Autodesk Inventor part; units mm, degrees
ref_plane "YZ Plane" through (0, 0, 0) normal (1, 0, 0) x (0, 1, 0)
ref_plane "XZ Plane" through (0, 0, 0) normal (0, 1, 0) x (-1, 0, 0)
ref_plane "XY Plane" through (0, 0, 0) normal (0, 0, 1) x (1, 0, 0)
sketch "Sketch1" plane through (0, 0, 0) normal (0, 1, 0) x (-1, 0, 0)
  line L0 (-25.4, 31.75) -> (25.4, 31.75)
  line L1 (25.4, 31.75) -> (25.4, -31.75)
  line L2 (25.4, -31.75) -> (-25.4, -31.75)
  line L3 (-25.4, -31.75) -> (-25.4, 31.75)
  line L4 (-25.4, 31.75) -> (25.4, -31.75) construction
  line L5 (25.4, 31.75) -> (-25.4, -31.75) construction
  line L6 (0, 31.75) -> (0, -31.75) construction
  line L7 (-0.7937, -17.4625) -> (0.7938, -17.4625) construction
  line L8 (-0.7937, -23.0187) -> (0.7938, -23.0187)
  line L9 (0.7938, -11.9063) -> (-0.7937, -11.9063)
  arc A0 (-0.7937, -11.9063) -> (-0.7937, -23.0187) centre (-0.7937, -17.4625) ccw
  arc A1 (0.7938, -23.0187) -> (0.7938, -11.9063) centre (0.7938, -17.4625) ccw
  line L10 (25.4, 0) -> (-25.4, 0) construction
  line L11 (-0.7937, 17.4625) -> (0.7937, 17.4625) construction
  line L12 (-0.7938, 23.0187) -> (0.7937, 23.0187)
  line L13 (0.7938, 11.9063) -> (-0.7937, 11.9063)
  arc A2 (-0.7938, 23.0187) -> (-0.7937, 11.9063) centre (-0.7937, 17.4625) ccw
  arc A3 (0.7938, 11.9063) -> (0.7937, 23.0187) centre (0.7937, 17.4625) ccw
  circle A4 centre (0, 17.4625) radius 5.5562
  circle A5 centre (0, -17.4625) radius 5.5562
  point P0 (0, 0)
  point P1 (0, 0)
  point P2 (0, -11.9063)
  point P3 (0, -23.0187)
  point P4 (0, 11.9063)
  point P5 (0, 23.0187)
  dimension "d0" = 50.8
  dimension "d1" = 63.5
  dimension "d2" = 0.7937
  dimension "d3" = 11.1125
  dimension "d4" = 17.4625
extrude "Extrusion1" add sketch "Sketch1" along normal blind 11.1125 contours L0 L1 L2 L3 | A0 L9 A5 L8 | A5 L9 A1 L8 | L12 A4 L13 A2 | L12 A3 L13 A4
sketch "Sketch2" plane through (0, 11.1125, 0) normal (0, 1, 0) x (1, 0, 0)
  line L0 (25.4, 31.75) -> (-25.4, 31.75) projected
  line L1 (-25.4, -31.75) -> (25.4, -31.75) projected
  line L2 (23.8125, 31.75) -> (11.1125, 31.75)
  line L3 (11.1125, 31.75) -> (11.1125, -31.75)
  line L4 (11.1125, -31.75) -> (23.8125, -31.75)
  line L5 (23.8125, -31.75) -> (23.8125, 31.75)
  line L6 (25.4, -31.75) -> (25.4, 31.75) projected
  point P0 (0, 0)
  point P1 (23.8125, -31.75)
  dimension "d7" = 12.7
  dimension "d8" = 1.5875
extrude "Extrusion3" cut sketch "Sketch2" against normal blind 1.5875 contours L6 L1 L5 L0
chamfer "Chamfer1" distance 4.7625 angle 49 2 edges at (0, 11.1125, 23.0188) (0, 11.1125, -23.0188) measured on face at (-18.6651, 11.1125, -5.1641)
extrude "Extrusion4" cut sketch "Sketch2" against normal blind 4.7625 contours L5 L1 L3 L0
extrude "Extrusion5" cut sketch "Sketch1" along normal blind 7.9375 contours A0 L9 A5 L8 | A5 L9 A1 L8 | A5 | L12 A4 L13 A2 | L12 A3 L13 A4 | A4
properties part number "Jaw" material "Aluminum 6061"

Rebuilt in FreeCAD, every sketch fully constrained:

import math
import FreeCAD as App
import Part
import Sketcher

V = App.Vector
Q = App.Units.Quantity


def edges_at(feature, points):
    """Names of the edges that pass closest to the given points."""
    edges = feature.Shape.Edges
    near = lambda p: min(range(len(edges)), key=lambda i: edges[i].distToShape(Part.Vertex(*p))[0])
    return sorted({f"Edge{near(p) + 1}" for p in points})


def add_polygon(sketch, points):
    """Adds a closed chain of lines whose ends are joined by coincident constraints."""
    first, n = sketch.GeometryCount, len(points)
    for a, b in zip(points, points[1:] + points[:1]):
        sketch.addGeometry(Part.LineSegment(App.Vector(*a, 0), App.Vector(*b, 0)), False)
    for i in range(n):
        sketch.addConstraint(Sketcher.Constraint("Coincident", first + i, 2, first + (i + 1) % n, 1))

doc = App.newDocument("Part")
params = doc.addObject("Spreadsheet::Sheet", "Params")
for row, (alias, value) in enumerate([
    ("sketch1_width", "2 in"),
    ("sketch1_diameter", "0.4375 in"),
    ("sketch1_height", "2.5 in"),
    ("pad1_length", "0.4375 in"),
    ("sketch2_width", "0.0625 in"),
    ("sketch2_height", "2.5 in"),
    ("pocket1_length", "0.0625 in"),
    ("chamfer_size", "0.1875 in"),
    ("sketch3_width", "0.5 in"),
    ("sketch3_height", "2.5 in"),
    ("pocket2_length", "0.1875 in"),
    ("sketch4_radius", "0.218748 in"),
    ("pocket3_length", "0.3125 in"),
], start=1):
    params.set(f"A{row}", alias)
    params.set(f"B{row}", "=" + value)
    params.setAlias(f"B{row}", alias)

body = doc.addObject("PartDesign::Body", "Body")

# Sketch on XZ plane
sketch1 = body.newObject("Sketcher::SketchObject", "Sketch")
sketch1.AttachmentSupport = (doc.getObject("XZ_Plane"), [""])
sketch1.MapMode = "FlatFace"
add_polygon(sketch1, [(-25, 32), (25, 32), (25, -32), (-25, -32)])  # lines 0-3
sketch1.addGeometry(Part.Circle(V(0, -17, 0), V(0, 0, 1), 6), False)  # 4
sketch1.addGeometry(Part.Circle(V(0, 17, 0), V(0, 0, 1), 6), False)  # 5
sketch1.addConstraint(Sketcher.Constraint("Horizontal", 0))
sketch1.addConstraint(Sketcher.Constraint("Vertical", 1))
sketch1.addConstraint(Sketcher.Constraint("Horizontal", 2))
sketch1.addConstraint(Sketcher.Constraint("Vertical", 3))
sketch1.addConstraint(Sketcher.Constraint("Equal", 4, 5))
sketch1.addConstraint(Sketcher.Constraint("Symmetric", 4, 3, 5, 3, -1, 1))
sketch1.addConstraint(Sketcher.Constraint("Symmetric", 0, 2, 2, 2, -1, 1))
sketch1.addConstraint(Sketcher.Constraint("PointOnObject", 4, 3, -2))
sketch1.addConstraint(Sketcher.Constraint("DistanceX", 0, 1, 0, 2, Q("2 in")))
sketch1.addConstraint(Sketcher.Constraint("Diameter", 4, Q("0.4375 in")))
sketch1.addConstraint(Sketcher.Constraint("DistanceY", 1, 2, 1, 1, Q("2.5 in")))
sketch1.addConstraint(Sketcher.Constraint("DistanceY", 4, 3, -1, 1, Q("0.6875 in")))
sketch1.setExpression("Constraints[12]", "Params.sketch1_width")
sketch1.setExpression("Constraints[13]", "Params.sketch1_diameter")
sketch1.setExpression("Constraints[14]", "Params.sketch1_height")
pad1 = body.newObject("PartDesign::Pad", "Pad")
pad1.Profile = sketch1
pad1.setExpression("Length", "Params.pad1_length")
pad1.Reversed = True

# Sketch on XZ plane
sketch2 = body.newObject("Sketcher::SketchObject", "Sketch001")
sketch2.AttachmentSupport = (doc.getObject("XZ_Plane"), [""])
sketch2.MapMode = "FlatFace"
sketch2.AttachmentOffset = App.Placement(V(0, 0, -0.4375 * 25.4), App.Rotation())
add_polygon(sketch2, [(25.4, 31.8), (25.4, -31.8), (23.8, -31.8), (23.8, 31.8)])  # lines 0-3
sketch2.addConstraint(Sketcher.Constraint("Vertical", 0))
sketch2.addConstraint(Sketcher.Constraint("Horizontal", 1))
sketch2.addConstraint(Sketcher.Constraint("Vertical", 2))
sketch2.addConstraint(Sketcher.Constraint("Horizontal", 3))
sketch2.addConstraint(Sketcher.Constraint("DistanceX", 1, 2, 1, 1, Q("0.0625 in")))
sketch2.addConstraint(Sketcher.Constraint("DistanceY", 0, 2, 0, 1, Q("2.5 in")))
sketch2.addConstraint(Sketcher.Constraint("DistanceX", -1, 1, 0, 2, Q("1 in")))
sketch2.addConstraint(Sketcher.Constraint("DistanceY", 0, 2, -1, 1, Q("1.25 in")))
sketch2.setExpression("Constraints[8]", "Params.sketch2_width")
sketch2.setExpression("Constraints[9]", "Params.sketch2_height")
pocket1 = body.newObject("PartDesign::Pocket", "Pocket")
pocket1.Profile = sketch2
pocket1.setExpression("Length", "Params.pocket1_length")
pocket1.Reversed = True
doc.recompute()

chamfer = body.newObject("PartDesign::Chamfer", "Chamfer")
chamfer.Base = (pocket1, edges_at(pocket1, [(0, 11.113, 23.019), (0, 11.113, -23.019)]))
chamfer.ChamferType = "Distance and Angle"
chamfer.setExpression("Size", "Params.chamfer_size")
chamfer.Angle = 49

# Sketch on XZ plane
sketch3 = body.newObject("Sketcher::SketchObject", "Sketch002")
sketch3.AttachmentSupport = (doc.getObject("XZ_Plane"), [""])
sketch3.MapMode = "FlatFace"
sketch3.AttachmentOffset = App.Placement(V(0, 0, -0.4375 * 25.4), App.Rotation())
add_polygon(sketch3, [(24, 32), (24, -32), (11, -32), (11, 32)])  # lines 0-3
sketch3.addConstraint(Sketcher.Constraint("Vertical", 0))
sketch3.addConstraint(Sketcher.Constraint("Horizontal", 1))
sketch3.addConstraint(Sketcher.Constraint("Vertical", 2))
sketch3.addConstraint(Sketcher.Constraint("Horizontal", 3))
sketch3.addConstraint(Sketcher.Constraint("DistanceX", 1, 2, 1, 1, Q("0.5 in")))
sketch3.addConstraint(Sketcher.Constraint("DistanceY", 0, 2, 0, 1, Q("2.5 in")))
sketch3.addConstraint(Sketcher.Constraint("DistanceY", 0, 2, -1, 1, Q("1.25 in")))
sketch3.addConstraint(Sketcher.Constraint("DistanceX", -1, 1, 0, 2, Q("0.9375 in")))
sketch3.setExpression("Constraints[8]", "Params.sketch3_width")
sketch3.setExpression("Constraints[9]", "Params.sketch3_height")
pocket2 = body.newObject("PartDesign::Pocket", "Pocket001")
pocket2.Profile = sketch3
pocket2.setExpression("Length", "Params.pocket2_length")
pocket2.Reversed = True

# Sketch on XZ plane
sketch4 = body.newObject("Sketcher::SketchObject", "Sketch003")
sketch4.AttachmentSupport = (doc.getObject("XZ_Plane"), [""])
sketch4.MapMode = "FlatFace"
sketch4.addGeometry(Part.ArcOfCircle(Part.Circle(V(0.8, -17.5, 0), V(0, 0, 1), 5.6), math.radians(-90), math.radians(90)), False)
sketch4.addGeometry(Part.LineSegment(V(0.8, -23, 0), V(-0.8, -23, 0)), False)
sketch4.addGeometry(Part.ArcOfCircle(Part.Circle(V(-0.8, -17.5, 0), V(0, 0, 1), 5.6), math.radians(90), math.radians(270)), False)
sketch4.addGeometry(Part.LineSegment(V(-0.8, -11.9, 0), V(0.8, -11.9, 0)), False)
sketch4.addGeometry(Part.ArcOfCircle(Part.Circle(V(0.8, 17.5, 0), V(0, 0, 1), 5.6), math.radians(-90), math.radians(90)), False)
sketch4.addGeometry(Part.LineSegment(V(0.8, 11.9, 0), V(-0.8, 11.9, 0)), False)
sketch4.addGeometry(Part.ArcOfCircle(Part.Circle(V(-0.8, 17.5, 0), V(0, 0, 1), 5.6), math.radians(90), math.radians(270)), False)
sketch4.addGeometry(Part.LineSegment(V(-0.8, 23, 0), V(0.8, 23, 0)), False)
sketch4.addConstraint(Sketcher.Constraint("Tangent", 0, 1, 1, 1))
sketch4.addConstraint(Sketcher.Constraint("Tangent", 1, 2, 2, 2))
sketch4.addConstraint(Sketcher.Constraint("Tangent", 2, 1, 3, 1))
sketch4.addConstraint(Sketcher.Constraint("Tangent", 3, 2, 0, 2))
sketch4.addConstraint(Sketcher.Constraint("Tangent", 4, 1, 5, 1))
sketch4.addConstraint(Sketcher.Constraint("Tangent", 5, 2, 6, 2))
sketch4.addConstraint(Sketcher.Constraint("Tangent", 6, 1, 7, 1))
sketch4.addConstraint(Sketcher.Constraint("Tangent", 7, 2, 4, 2))
sketch4.addConstraint(Sketcher.Constraint("Horizontal", 1))
sketch4.addConstraint(Sketcher.Constraint("Horizontal", 3))
sketch4.addConstraint(Sketcher.Constraint("Horizontal", 5))
sketch4.addConstraint(Sketcher.Constraint("Horizontal", 7))
sketch4.addConstraint(Sketcher.Constraint("Equal", 2, 4))
sketch4.addConstraint(Sketcher.Constraint("Symmetric", 2, 3, 4, 3, -1, 1))
sketch4.addConstraint(Sketcher.Constraint("Vertical", 0, 3, 4, 3))
sketch4.addConstraint(Sketcher.Constraint("Vertical", 2, 3, 6, 3))
sketch4.addConstraint(Sketcher.Constraint("Radius", 0, Q("0.218748 in")))
sketch4.addConstraint(Sketcher.Constraint("DistanceX", -1, 1, 0, 3, Q("0.031248 in")))
sketch4.addConstraint(Sketcher.Constraint("DistanceY", 0, 3, -1, 1, Q("0.6875 in")))
sketch4.setExpression("Constraints[16]", "Params.sketch4_radius")
pocket3 = body.newObject("PartDesign::Pocket", "Pocket002")
pocket3.Profile = sketch4
pocket3.setExpression("Length", "Params.pocket3_length")

doc.recompute()
